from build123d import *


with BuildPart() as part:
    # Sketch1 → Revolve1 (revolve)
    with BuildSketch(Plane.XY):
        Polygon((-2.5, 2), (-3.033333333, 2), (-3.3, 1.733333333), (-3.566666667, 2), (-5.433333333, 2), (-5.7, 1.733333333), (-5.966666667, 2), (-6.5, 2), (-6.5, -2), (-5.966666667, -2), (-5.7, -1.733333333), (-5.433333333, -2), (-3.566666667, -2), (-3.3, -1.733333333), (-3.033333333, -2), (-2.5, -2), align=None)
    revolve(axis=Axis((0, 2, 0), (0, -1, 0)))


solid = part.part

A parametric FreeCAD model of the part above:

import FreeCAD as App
import Part
import Sketcher
from FreeCAD import Vector
Q = App.Units.Quantity

doc = App.newDocument("Part")
body = doc.addObject("PartDesign::Body", "Body")

sketch1 = body.newObject("Sketcher::SketchObject", "Sketch")
sketch1.AttachmentSupport = (doc.getObject("XY_Plane"), [""])
sketch1.MapMode = "FlatFace"
sketch1.addGeometry([
    Part.LineSegment(Vector(-2.5, 2, 0), Vector(-3.03, 2, 0)),
    Part.LineSegment(Vector(-3.03, 2, 0), Vector(-3.3, 1.73, 0)),
    Part.LineSegment(Vector(-3.3, 1.73, 0), Vector(-3.57, 2, 0)),
    Part.LineSegment(Vector(-3.57, 2, 0), Vector(-5.43, 2, 0)),
    Part.LineSegment(Vector(-5.43, 2, 0), Vector(-5.7, 1.73, 0)),
    Part.LineSegment(Vector(-5.7, 1.73, 0), Vector(-5.97, 2, 0)),
    Part.LineSegment(Vector(-5.97, 2, 0), Vector(-6.5, 2, 0)),
    Part.LineSegment(Vector(-6.5, 2, 0), Vector(-6.5, -2, 0)),
    Part.LineSegment(Vector(-6.5, -2, 0), Vector(-5.97, -2, 0)),
    Part.LineSegment(Vector(-5.97, -2, 0), Vector(-5.7, -1.73, 0)),
    Part.LineSegment(Vector(-5.7, -1.73, 0), Vector(-5.43, -2, 0)),
    Part.LineSegment(Vector(-5.43, -2, 0), Vector(-3.57, -2, 0)),
    Part.LineSegment(Vector(-3.57, -2, 0), Vector(-3.3, -1.73, 0)),
    Part.LineSegment(Vector(-3.3, -1.73, 0), Vector(-3.03, -2, 0)),
    Part.LineSegment(Vector(-3.03, -2, 0), Vector(-2.5, -2, 0)),
    Part.LineSegment(Vector(-2.5, -2, 0), Vector(-2.5, 2, 0)),
], False)
sketch1.addConstraint([
    Sketcher.Constraint("Coincident", 0, 2, 1, 1),
    Sketcher.Constraint("Coincident", 1, 2, 2, 1),
    Sketcher.Constraint("Coincident", 2, 2, 3, 1),
    Sketcher.Constraint("Coincident", 3, 2, 4, 1),
    Sketcher.Constraint("Coincident", 4, 2, 5, 1),
    Sketcher.Constraint("Coincident", 5, 2, 6, 1),
    Sketcher.Constraint("Coincident", 6, 2, 7, 1),
    Sketcher.Constraint("Coincident", 7, 2, 8, 1),
    Sketcher.Constraint("Coincident", 8, 2, 9, 1),
    Sketcher.Constraint("Coincident", 9, 2, 10, 1),
    Sketcher.Constraint("Coincident", 10, 2, 11, 1),
    Sketcher.Constraint("Coincident", 11, 2, 12, 1),
    Sketcher.Constraint("Coincident", 12, 2, 13, 1),
    Sketcher.Constraint("Coincident", 13, 2, 14, 1),
    Sketcher.Constraint("Coincident", 14, 2, 15, 1),
    Sketcher.Constraint("Coincident", 15, 2, 0, 1),
    Sketcher.Constraint("Horizontal", 0),
    Sketcher.Constraint("Horizontal", 3),
    Sketcher.Constraint("Horizontal", 6),
    Sketcher.Constraint("Vertical", 7),
    Sketcher.Constraint("Horizontal", 8),
    Sketcher.Constraint("Horizontal", 11),
    Sketcher.Constraint("Horizontal", 14),
    Sketcher.Constraint("Vertical", 15),
    Sketcher.Constraint("Symmetric", 5, 2, 8, 2, -1),
    Sketcher.Constraint("Symmetric", 4, 2, 9, 2, -1),
    Sketcher.Constraint("Symmetric", 3, 2, 10, 2, -1),
    Sketcher.Constraint("Symmetric", 1, 2, 12, 2, -1),
    Sketcher.Constraint("Symmetric", 0, 2, 13, 2, -1),
    Sketcher.Constraint("Perpendicular", 1, 2),
    Sketcher.Constraint("Perpendicular", 2, 4),
    Sketcher.Constraint("Perpendicular", 4, 5),
    Sketcher.Constraint("Perpendicular", 5, 9),
    Sketcher.Constraint("Perpendicular", 10, 12),
    Sketcher.Constraint("Horizontal", 0, 2, 2, 2),
    Sketcher.Constraint("Horizontal", 1, 2, 4, 2),
    Sketcher.Constraint("Horizontal", 3, 2, 5, 2),
    Sketcher.Constraint("Equal", 0, 6),
    Sketcher.Constraint("DistanceY", 7, 2, 7, 1, Q("4 mm")),
    Sketcher.Constraint("DistanceX", 1, 2, -1, 1, Q("3.3 mm")),
    Sketcher.Constraint("DistanceX", 4, 2, -1, 1, Q("5.7 mm")),
    Sketcher.Constraint("DistanceX", 6, 2, -1, 1, Q("6.5 mm")),
    Sketcher.Constraint("DistanceX", 0, 2, 0, 1, Q("0.533333 mm")),
])
revolution = body.newObject("PartDesign::Revolution", "Revolution")
revolution.Profile = sketch1
revolution.ReferenceAxis = (sketch1, ["V_Axis"])
revolution.Angle = 360

doc.recompute()
